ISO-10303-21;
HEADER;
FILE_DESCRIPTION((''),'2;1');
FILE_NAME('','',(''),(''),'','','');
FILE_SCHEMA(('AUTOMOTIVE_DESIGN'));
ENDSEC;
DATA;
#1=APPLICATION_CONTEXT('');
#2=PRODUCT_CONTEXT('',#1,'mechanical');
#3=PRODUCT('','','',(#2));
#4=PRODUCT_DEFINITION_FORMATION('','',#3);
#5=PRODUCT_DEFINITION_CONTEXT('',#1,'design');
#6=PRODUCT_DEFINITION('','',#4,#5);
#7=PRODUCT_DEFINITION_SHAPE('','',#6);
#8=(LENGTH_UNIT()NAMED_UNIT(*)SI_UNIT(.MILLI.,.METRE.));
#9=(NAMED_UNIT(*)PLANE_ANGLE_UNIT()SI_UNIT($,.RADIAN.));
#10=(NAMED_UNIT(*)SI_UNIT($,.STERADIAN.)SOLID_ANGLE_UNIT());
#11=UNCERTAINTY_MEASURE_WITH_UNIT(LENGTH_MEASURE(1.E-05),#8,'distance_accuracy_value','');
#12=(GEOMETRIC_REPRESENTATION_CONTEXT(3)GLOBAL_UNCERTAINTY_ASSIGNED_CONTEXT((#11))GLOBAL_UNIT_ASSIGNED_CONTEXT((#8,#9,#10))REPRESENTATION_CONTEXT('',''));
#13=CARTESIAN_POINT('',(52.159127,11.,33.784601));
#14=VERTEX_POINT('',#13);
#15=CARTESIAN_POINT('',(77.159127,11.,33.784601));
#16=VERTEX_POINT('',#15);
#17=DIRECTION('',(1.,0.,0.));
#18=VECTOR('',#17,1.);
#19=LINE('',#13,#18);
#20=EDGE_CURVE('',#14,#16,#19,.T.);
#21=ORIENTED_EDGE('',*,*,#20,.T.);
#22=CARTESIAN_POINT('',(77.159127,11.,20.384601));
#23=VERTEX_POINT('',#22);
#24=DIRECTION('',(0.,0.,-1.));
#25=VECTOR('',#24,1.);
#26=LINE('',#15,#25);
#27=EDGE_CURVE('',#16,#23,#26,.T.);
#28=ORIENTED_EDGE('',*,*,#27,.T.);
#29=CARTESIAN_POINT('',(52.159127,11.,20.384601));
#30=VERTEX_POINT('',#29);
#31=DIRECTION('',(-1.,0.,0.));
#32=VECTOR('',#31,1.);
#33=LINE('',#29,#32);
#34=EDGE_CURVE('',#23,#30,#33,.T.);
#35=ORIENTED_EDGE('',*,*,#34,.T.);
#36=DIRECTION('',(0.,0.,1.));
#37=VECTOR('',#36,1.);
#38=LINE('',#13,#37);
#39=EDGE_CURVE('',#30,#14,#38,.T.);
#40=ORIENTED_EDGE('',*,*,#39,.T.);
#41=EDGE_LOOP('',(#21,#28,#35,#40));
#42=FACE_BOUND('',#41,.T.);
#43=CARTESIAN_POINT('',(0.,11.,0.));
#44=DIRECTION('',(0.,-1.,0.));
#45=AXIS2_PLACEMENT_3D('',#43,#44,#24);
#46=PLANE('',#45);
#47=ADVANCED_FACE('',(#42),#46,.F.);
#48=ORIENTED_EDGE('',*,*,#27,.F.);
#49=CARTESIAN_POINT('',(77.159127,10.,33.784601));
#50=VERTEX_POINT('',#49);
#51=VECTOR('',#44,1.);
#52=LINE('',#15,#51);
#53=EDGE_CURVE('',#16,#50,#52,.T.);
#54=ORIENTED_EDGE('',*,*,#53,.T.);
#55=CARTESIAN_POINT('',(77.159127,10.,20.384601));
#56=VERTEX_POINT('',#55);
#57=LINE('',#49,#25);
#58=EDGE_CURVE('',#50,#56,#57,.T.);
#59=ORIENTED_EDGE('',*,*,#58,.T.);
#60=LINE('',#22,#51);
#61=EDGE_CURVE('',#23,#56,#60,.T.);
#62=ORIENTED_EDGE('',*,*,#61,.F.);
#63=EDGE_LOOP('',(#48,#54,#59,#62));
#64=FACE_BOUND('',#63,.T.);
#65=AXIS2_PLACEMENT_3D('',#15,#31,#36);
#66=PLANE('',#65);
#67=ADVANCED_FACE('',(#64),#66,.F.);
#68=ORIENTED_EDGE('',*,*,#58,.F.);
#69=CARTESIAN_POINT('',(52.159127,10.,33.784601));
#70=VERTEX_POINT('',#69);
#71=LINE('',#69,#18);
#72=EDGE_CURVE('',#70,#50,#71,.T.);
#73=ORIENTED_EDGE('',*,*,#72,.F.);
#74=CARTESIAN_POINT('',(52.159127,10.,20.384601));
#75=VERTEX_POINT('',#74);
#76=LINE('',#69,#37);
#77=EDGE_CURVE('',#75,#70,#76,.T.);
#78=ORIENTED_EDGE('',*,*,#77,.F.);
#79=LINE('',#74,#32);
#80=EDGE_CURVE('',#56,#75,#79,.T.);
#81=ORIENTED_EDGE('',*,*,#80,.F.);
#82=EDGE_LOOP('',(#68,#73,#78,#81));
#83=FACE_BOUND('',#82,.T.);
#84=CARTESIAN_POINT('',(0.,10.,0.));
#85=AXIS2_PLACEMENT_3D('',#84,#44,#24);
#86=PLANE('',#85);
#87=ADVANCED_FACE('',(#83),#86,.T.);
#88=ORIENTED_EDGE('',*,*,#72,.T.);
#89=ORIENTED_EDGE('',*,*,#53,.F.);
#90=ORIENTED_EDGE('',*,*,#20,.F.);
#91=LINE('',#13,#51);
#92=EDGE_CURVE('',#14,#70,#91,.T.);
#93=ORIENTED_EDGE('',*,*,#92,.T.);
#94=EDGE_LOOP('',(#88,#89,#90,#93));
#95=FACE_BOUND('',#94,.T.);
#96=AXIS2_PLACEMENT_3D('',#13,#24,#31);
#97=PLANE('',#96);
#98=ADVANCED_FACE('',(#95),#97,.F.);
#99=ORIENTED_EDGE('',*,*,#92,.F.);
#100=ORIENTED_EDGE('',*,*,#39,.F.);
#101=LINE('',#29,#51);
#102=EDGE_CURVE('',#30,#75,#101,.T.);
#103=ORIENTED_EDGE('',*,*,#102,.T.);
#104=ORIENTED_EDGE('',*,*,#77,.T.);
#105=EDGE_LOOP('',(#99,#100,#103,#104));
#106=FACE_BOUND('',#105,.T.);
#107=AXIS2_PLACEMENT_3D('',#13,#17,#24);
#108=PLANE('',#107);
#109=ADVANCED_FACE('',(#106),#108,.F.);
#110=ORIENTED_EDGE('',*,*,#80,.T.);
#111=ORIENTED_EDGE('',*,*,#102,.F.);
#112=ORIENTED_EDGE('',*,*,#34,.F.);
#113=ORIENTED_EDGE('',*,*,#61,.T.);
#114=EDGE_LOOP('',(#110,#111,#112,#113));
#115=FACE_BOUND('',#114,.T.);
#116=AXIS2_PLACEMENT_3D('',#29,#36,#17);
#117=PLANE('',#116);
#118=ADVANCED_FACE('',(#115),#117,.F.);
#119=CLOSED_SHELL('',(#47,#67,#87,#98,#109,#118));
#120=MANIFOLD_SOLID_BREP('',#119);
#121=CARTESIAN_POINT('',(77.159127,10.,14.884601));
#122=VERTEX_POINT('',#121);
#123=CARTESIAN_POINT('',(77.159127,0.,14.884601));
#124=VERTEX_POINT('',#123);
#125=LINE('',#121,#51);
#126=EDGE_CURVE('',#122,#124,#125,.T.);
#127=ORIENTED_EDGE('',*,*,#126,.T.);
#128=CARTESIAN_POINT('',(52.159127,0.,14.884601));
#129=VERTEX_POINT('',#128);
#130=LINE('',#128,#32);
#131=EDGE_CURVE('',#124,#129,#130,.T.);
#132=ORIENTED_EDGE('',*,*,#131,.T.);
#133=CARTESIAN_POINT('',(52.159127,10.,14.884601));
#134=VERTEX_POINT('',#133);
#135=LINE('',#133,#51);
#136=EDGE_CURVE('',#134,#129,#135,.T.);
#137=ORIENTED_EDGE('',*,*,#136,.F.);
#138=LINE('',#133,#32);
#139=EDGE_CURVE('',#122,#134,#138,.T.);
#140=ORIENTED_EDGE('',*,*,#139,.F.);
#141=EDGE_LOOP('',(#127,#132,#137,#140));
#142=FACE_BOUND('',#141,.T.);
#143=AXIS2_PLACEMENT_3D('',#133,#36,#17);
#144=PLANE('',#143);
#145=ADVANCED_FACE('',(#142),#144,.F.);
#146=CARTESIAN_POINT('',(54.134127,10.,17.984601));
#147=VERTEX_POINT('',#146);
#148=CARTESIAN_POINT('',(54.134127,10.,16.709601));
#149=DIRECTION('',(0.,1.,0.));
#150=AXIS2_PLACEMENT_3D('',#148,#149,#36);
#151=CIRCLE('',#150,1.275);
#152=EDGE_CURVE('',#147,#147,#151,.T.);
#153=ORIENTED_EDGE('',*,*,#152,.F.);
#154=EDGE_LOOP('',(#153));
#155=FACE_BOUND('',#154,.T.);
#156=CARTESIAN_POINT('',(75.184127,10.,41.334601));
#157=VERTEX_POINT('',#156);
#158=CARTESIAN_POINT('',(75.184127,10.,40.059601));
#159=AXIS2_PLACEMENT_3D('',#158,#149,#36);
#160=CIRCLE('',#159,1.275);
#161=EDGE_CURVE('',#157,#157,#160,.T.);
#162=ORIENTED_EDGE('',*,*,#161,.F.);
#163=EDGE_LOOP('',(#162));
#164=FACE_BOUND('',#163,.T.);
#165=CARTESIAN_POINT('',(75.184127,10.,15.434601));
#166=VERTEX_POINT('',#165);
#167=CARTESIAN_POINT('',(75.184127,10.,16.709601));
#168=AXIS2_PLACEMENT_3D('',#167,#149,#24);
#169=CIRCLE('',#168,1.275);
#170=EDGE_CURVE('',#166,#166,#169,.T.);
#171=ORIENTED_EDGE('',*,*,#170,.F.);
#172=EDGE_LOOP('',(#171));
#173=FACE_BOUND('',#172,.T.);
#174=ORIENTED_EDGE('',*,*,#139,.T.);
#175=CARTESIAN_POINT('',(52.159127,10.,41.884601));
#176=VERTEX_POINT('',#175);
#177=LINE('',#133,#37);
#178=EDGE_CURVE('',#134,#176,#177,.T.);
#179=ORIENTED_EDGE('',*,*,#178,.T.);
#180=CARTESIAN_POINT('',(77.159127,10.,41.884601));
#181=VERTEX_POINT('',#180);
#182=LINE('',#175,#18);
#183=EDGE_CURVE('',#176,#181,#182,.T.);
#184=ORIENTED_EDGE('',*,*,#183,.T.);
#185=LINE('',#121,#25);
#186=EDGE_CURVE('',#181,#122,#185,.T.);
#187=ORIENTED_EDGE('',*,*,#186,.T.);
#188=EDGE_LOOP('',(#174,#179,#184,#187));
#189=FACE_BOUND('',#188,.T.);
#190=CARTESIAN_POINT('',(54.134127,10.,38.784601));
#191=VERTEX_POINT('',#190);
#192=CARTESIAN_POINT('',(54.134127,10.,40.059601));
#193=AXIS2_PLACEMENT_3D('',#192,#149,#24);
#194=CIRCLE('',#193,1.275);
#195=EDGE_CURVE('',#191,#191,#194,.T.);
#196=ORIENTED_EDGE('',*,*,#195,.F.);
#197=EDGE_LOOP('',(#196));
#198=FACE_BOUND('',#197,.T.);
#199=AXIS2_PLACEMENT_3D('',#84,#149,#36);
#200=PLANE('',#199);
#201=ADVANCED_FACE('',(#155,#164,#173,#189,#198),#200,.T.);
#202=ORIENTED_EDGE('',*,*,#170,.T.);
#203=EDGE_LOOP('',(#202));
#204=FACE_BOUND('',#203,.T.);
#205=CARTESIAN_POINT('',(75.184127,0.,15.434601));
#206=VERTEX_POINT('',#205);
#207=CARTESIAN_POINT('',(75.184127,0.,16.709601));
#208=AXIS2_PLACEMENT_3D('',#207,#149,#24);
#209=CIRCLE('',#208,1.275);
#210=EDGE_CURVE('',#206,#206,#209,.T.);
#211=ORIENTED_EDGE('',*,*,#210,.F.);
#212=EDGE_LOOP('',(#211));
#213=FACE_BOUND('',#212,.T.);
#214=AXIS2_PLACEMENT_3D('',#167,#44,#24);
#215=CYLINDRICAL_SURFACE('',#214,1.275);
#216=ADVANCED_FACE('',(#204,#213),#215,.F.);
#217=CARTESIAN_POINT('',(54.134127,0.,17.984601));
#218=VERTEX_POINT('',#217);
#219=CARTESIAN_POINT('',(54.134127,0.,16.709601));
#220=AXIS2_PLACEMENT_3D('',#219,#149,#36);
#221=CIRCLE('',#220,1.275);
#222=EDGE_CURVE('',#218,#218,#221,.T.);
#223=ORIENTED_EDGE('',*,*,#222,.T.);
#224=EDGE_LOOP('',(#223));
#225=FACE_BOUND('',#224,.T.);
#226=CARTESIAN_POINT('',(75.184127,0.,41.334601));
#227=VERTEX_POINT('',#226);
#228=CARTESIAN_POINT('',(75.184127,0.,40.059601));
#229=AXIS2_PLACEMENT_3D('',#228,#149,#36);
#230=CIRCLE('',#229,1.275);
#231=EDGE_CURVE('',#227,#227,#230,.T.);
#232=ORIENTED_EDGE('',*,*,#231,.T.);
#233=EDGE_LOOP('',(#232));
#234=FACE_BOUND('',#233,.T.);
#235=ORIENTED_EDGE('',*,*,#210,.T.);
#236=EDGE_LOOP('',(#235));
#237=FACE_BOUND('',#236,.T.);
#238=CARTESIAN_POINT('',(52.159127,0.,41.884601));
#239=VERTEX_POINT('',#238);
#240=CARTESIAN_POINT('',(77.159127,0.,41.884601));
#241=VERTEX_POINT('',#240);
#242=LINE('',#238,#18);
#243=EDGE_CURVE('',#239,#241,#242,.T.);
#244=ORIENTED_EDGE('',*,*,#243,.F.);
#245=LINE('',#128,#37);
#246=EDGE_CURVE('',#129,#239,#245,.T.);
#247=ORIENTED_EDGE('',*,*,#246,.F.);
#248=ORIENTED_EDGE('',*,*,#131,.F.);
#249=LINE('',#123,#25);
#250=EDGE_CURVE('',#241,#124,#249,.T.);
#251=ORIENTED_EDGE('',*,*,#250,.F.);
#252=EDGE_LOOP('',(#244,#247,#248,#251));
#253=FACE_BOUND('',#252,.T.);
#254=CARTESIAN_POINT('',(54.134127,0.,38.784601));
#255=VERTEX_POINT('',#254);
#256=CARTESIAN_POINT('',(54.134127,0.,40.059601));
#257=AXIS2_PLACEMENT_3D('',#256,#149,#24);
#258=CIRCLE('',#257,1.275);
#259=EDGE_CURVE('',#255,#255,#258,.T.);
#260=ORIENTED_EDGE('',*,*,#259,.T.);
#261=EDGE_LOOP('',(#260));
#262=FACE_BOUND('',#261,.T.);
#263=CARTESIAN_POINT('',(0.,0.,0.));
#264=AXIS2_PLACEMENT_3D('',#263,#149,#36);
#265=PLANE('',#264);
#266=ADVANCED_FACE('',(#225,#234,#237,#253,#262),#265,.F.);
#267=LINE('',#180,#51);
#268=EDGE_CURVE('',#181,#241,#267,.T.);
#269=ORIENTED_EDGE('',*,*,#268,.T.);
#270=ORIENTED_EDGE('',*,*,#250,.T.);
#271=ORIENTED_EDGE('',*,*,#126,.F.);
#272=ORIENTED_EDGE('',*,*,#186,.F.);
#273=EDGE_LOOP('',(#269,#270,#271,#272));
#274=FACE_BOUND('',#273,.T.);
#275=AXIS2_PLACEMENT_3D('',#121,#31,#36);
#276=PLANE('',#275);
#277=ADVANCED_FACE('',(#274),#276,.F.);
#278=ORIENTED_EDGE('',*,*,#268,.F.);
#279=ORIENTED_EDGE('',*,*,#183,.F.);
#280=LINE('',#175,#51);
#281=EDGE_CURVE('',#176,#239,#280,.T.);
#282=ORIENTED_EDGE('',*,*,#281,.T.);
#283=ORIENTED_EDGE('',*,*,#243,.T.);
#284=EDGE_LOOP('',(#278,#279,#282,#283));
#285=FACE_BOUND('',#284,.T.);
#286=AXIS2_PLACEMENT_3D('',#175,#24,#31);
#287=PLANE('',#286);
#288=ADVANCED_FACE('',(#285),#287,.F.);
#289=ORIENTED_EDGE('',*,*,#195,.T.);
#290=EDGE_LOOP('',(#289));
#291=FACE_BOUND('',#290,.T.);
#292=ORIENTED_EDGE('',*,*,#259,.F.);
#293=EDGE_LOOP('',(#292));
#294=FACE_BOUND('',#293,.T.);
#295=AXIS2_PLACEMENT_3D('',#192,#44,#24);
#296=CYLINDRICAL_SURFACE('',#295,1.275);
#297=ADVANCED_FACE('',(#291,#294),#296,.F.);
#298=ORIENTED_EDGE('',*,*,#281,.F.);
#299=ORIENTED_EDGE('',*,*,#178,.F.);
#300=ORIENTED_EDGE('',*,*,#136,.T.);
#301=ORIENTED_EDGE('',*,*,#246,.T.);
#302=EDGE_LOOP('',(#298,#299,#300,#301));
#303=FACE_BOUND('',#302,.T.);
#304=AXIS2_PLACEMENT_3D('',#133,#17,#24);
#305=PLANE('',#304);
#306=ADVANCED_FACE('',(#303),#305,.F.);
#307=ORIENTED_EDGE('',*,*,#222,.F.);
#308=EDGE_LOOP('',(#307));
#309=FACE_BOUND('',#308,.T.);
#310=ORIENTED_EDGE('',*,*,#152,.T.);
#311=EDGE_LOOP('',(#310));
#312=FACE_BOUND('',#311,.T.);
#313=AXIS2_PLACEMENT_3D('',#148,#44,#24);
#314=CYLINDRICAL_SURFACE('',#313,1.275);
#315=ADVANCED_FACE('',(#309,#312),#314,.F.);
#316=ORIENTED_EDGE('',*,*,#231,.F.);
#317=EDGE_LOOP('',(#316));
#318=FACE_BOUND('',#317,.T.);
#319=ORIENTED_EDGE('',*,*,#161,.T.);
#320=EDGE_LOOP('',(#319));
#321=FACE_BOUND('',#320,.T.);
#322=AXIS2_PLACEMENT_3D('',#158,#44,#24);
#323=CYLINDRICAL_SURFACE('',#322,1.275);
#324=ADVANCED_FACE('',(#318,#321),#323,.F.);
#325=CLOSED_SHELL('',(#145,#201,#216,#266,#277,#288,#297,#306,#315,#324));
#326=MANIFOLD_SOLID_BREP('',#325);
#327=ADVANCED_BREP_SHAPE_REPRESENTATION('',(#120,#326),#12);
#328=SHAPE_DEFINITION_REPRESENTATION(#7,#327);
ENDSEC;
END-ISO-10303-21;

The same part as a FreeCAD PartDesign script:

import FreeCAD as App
import Part
import Sketcher
from FreeCAD import Vector

doc = App.newDocument("Part")
params = doc.addObject("Spreadsheet::Sheet", "Params")
for row, (alias, value) in enumerate([
    ("sketch1_diameter", "2.55 mm"),
    ("sketch1_width", "25 mm"),
    ("sketch1_height", "27 mm"),
    ("pad1_length", "10 mm"),
    ("sketch2_width", "25 mm"),
    ("sketch2_height", "13.4 mm"),
    ("pad2_length", "1 mm"),
], start=1):
    params.set(f"A{row}", alias)
    params.set(f"B{row}", "=" + value)
    params.setAlias(f"B{row}", alias)

body = doc.addObject("PartDesign::Body", "Body")

# Sketch on XZ plane
sketch1 = body.newObject("Sketcher::SketchObject", "Sketch")
sketch1.AttachmentSupport = (doc.getObject("XZ_Plane"), [""])
sketch1.MapMode = "FlatFace"
sketch1.addGeometry(Part.LineSegment(Vector(52.2, 14.9, 0), Vector(52.2, 41.9, 0)), False)
sketch1.addGeometry(Part.LineSegment(Vector(52.2, 41.9, 0), Vector(77.2, 41.9, 0)), False)
sketch1.addGeometry(Part.LineSegment(Vector(77.2, 41.9, 0), Vector(77.2, 14.9, 0)), False)
sketch1.addGeometry(Part.LineSegment(Vector(77.2, 14.9, 0), Vector(52.2, 14.9, 0)), False)
sketch1.addGeometry(Part.Circle(Vector(54.1, 40.1, 0), Vector(0, 0, 1), 1.3), False)
sketch1.addGeometry(Part.Circle(Vector(75.2, 40.1, 0), Vector(0, 0, 1), 1.3), False)
sketch1.addGeometry(Part.Circle(Vector(54.1, 16.7, 0), Vector(0, 0, 1), 1.3), False)
sketch1.addGeometry(Part.Circle(Vector(75.2, 16.7, 0), Vector(0, 0, 1), 1.3), False)
sketch1.addConstraint(Sketcher.Constraint("Coincident", 0, 2, 1, 1))
sketch1.addConstraint(Sketcher.Constraint("Coincident", 1, 2, 2, 1))
sketch1.addConstraint(Sketcher.Constraint("Coincident", 2, 2, 3, 1))
sketch1.addConstraint(Sketcher.Constraint("Coincident", 3, 2, 0, 1))
sketch1.addConstraint(Sketcher.Constraint("Vertical", 0))
sketch1.addConstraint(Sketcher.Constraint("Horizontal", 1))
sketch1.addConstraint(Sketcher.Constraint("Vertical", 2))
sketch1.addConstraint(Sketcher.Constraint("Horizontal", 3))
sketch1.addConstraint(Sketcher.Constraint("Equal", 4, 5))
sketch1.addConstraint(Sketcher.Constraint("Equal", 5, 6))
sketch1.addConstraint(Sketcher.Constraint("Equal", 6, 7))
sketch1.addConstraint(Sketcher.Constraint("Horizontal", 4, 3, 5, 3))
sketch1.addConstraint(Sketcher.Constraint("Horizontal", 6, 3, 7, 3))
sketch1.addConstraint(Sketcher.Constraint("Vertical", 4, 3, 6, 3))
sketch1.addConstraint(Sketcher.Constraint("Vertical", 5, 3, 7, 3))
sketch1.addConstraint(Sketcher.Constraint("Diameter", 4, 2.55))
sketch1.addConstraint(Sketcher.Constraint("DistanceX", 1, 1, 1, 2, 25.0))
sketch1.addConstraint(Sketcher.Constraint("DistanceY", 0, 1, 0, 2, 27.0))
sketch1.addConstraint(Sketcher.Constraint("DistanceX", 4, 3, 5, 3, 21.05))
sketch1.addConstraint(Sketcher.Constraint("DistanceY", 6, 3, 4, 3, 23.35))
sketch1.addConstraint(Sketcher.Constraint("DistanceX", 0, 2, 4, 3, 1.975))
sketch1.addConstraint(Sketcher.Constraint("DistanceY", 4, 3, 0, 2, 1.825))
sketch1.addConstraint(Sketcher.Constraint("DistanceY", -1, 1, 4, 3, 40.059601))
sketch1.addConstraint(Sketcher.Constraint("DistanceX", -1, 1, 4, 3, 54.134127))
sketch1.setExpression("Constraints[15]", "Params.sketch1_diameter")
sketch1.setExpression("Constraints[16]", "Params.sketch1_width")
sketch1.setExpression("Constraints[17]", "Params.sketch1_height")
pad1 = body.newObject("PartDesign::Pad", "Pad")
pad1.Profile = sketch1
pad1.setExpression("Length", "Params.pad1_length")
pad1.Reversed = True
body2 = doc.addObject("PartDesign::Body", "Body001")

# Sketch on XZ plane
sketch2 = body2.newObject("Sketcher::SketchObject", "Sketch001")
sketch2.AttachmentSupport = (doc.getObject("XZ_Plane001"), [""])
sketch2.MapMode = "FlatFace"
sketch2.AttachmentOffset = App.Placement(Vector(0, 0, -10), App.Rotation())
sketch2.addGeometry(Part.LineSegment(Vector(52, 20, 0), Vector(52, 34, 0)), False)
sketch2.addGeometry(Part.LineSegment(Vector(52, 34, 0), Vector(77, 34, 0)), False)
sketch2.addGeometry(Part.LineSegment(Vector(77, 34, 0), Vector(77, 20, 0)), False)
sketch2.addGeometry(Part.LineSegment(Vector(77, 20, 0), Vector(52, 20, 0)), False)
sketch2.addConstraint(Sketcher.Constraint("Coincident", 0, 2, 1, 1))
sketch2.addConstraint(Sketcher.Constraint("Coincident", 1, 2, 2, 1))
sketch2.addConstraint(Sketcher.Constraint("Coincident", 2, 2, 3, 1))
sketch2.addConstraint(Sketcher.Constraint("Coincident", 3, 2, 0, 1))
sketch2.addConstraint(Sketcher.Constraint("Vertical", 0))
sketch2.addConstraint(Sketcher.Constraint("Horizontal", 1))
sketch2.addConstraint(Sketcher.Constraint("Vertical", 2))
sketch2.addConstraint(Sketcher.Constraint("Horizontal", 3))
sketch2.addConstraint(Sketcher.Constraint("DistanceX", 1, 1, 1, 2, 25.0))
sketch2.addConstraint(Sketcher.Constraint("DistanceY", 0, 1, 0, 2, 13.4))
sketch2.addConstraint(Sketcher.Constraint("DistanceY", -1, 1, 0, 2, 33.784601))
sketch2.addConstraint(Sketcher.Constraint("DistanceX", -1, 1, 0, 2, 52.159127))
sketch2.setExpression("Constraints[8]", "Params.sketch2_width")
sketch2.setExpression("Constraints[9]", "Params.sketch2_height")
pad2 = body2.newObject("PartDesign::Pad", "Pad001")
pad2.Profile = sketch2
pad2.setExpression("Length", "Params.pad2_length")
pad2.Reversed = True

doc.recompute()
